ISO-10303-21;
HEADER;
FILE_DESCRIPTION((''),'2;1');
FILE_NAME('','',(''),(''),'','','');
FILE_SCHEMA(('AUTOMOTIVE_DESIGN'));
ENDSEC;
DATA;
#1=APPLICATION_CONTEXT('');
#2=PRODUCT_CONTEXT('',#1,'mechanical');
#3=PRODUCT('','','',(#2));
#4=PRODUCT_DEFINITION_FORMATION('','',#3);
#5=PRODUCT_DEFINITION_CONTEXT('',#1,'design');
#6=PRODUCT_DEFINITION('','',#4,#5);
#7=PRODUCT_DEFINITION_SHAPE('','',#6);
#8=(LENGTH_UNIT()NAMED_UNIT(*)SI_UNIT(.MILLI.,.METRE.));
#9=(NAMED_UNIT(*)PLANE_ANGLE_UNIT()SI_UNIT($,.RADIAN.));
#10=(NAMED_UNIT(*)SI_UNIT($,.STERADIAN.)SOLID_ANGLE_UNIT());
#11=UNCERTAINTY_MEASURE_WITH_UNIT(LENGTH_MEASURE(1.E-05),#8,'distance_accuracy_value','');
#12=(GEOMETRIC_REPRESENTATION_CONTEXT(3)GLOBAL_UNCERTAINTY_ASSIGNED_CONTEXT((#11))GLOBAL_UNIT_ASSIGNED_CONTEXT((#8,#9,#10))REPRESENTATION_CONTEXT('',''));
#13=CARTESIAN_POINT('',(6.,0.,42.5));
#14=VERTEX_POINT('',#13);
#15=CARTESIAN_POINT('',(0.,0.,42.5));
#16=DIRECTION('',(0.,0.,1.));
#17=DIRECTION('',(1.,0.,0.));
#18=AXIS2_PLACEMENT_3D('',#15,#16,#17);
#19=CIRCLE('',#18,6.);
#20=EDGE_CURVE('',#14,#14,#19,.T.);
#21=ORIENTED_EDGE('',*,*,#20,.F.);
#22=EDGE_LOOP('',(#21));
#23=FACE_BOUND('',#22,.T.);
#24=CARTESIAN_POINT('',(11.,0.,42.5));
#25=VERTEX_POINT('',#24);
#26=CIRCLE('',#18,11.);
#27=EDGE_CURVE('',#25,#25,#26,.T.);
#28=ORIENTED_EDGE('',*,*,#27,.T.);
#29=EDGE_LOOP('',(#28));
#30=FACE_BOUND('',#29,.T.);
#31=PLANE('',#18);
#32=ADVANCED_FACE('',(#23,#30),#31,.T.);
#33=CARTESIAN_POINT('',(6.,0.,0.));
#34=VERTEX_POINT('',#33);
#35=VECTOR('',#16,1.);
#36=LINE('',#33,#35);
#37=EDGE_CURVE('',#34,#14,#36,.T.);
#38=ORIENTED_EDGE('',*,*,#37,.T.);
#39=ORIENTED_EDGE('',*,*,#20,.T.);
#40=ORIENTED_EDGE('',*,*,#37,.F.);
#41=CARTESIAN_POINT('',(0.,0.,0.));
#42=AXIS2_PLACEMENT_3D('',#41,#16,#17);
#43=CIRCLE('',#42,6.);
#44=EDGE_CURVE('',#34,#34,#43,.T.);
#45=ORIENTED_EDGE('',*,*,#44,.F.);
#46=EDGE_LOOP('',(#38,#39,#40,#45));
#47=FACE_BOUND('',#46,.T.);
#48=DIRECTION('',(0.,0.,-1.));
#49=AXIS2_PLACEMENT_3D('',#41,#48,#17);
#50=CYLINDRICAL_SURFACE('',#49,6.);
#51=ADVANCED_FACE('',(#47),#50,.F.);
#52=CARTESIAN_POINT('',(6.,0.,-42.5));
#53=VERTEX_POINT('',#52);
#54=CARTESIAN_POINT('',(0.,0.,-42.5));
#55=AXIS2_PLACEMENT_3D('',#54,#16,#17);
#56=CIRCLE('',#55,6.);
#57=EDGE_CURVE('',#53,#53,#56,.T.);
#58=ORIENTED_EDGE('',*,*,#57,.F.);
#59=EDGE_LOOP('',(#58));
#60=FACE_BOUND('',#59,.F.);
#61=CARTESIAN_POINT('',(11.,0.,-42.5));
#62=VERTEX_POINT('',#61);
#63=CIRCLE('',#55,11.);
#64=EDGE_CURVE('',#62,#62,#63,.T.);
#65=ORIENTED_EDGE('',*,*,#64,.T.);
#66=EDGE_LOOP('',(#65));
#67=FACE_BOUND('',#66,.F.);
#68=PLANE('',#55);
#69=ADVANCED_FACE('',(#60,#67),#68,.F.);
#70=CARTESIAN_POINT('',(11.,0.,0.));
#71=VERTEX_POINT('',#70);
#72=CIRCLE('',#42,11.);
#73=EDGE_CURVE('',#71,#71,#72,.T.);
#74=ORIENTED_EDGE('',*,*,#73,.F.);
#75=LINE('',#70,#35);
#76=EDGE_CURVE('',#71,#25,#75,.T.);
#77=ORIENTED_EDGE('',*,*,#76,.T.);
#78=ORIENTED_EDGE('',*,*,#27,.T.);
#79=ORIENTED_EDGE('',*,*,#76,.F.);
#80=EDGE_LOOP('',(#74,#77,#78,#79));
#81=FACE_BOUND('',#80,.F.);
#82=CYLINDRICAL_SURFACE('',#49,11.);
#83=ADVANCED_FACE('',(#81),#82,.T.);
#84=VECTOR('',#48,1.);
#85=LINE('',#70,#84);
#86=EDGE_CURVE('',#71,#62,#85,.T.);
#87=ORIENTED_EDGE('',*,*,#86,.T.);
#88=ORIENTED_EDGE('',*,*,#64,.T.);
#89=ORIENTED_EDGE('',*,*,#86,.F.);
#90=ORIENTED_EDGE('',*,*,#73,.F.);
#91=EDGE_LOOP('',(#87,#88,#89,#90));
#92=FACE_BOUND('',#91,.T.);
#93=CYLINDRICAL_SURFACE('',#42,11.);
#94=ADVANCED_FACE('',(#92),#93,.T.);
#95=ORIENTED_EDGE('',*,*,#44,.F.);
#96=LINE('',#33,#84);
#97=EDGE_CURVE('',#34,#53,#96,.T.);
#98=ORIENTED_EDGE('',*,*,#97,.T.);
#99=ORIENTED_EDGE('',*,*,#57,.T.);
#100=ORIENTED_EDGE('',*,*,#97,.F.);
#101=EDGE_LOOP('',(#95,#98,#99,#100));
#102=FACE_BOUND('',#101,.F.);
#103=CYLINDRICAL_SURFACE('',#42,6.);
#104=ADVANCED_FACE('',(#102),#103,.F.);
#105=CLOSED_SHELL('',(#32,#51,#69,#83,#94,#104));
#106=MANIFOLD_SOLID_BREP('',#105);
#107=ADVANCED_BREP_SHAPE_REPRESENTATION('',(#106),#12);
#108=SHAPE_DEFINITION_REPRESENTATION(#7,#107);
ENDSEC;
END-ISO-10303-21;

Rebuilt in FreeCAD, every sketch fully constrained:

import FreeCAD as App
import Part
import Sketcher
from FreeCAD import Vector
Q = App.Units.Quantity

doc = App.newDocument("Part")
params = doc.addObject("Spreadsheet::Sheet", "Params")
for row, (alias, value) in enumerate([
    ("sketch1_diameter", "22 mm"),
    ("sketch1_diameter2", "12 mm"),
    ("pad1_length", "85 mm"),
], start=1):
    params.set(f"A{row}", alias)
    params.set(f"B{row}", "=" + value)
    params.setAlias(f"B{row}", alias)

body = doc.addObject("PartDesign::Body", "Body")

sketch1 = body.newObject("Sketcher::SketchObject", "Sketch")
sketch1.AttachmentSupport = (doc.getObject("XY_Plane"), [""])
sketch1.MapMode = "FlatFace"
sketch1.addGeometry([
    Part.Circle(Vector(0, 0, 0), Vector(0, 0, 1), 11),
    Part.Circle(Vector(0, 0, 0), Vector(0, 0, 1), 6),
], False)
sketch1.addConstraint([
    Sketcher.Constraint("Coincident", 0, 3, -1, 1),
    Sketcher.Constraint("Coincident", 1, 3, -1, 1),
    Sketcher.Constraint("Diameter", 0, Q("22 mm")),
    Sketcher.Constraint("Diameter", 1, Q("12 mm")),
])
sketch1.setExpression("Constraints[2]", "Params.sketch1_diameter")
sketch1.setExpression("Constraints[3]", "Params.sketch1_diameter2")
pad1 = body.newObject("PartDesign::Pad", "Pad")
pad1.Profile = sketch1
pad1.setExpression("Length", "Params.pad1_length")
pad1.Midplane = True

doc.recompute()
